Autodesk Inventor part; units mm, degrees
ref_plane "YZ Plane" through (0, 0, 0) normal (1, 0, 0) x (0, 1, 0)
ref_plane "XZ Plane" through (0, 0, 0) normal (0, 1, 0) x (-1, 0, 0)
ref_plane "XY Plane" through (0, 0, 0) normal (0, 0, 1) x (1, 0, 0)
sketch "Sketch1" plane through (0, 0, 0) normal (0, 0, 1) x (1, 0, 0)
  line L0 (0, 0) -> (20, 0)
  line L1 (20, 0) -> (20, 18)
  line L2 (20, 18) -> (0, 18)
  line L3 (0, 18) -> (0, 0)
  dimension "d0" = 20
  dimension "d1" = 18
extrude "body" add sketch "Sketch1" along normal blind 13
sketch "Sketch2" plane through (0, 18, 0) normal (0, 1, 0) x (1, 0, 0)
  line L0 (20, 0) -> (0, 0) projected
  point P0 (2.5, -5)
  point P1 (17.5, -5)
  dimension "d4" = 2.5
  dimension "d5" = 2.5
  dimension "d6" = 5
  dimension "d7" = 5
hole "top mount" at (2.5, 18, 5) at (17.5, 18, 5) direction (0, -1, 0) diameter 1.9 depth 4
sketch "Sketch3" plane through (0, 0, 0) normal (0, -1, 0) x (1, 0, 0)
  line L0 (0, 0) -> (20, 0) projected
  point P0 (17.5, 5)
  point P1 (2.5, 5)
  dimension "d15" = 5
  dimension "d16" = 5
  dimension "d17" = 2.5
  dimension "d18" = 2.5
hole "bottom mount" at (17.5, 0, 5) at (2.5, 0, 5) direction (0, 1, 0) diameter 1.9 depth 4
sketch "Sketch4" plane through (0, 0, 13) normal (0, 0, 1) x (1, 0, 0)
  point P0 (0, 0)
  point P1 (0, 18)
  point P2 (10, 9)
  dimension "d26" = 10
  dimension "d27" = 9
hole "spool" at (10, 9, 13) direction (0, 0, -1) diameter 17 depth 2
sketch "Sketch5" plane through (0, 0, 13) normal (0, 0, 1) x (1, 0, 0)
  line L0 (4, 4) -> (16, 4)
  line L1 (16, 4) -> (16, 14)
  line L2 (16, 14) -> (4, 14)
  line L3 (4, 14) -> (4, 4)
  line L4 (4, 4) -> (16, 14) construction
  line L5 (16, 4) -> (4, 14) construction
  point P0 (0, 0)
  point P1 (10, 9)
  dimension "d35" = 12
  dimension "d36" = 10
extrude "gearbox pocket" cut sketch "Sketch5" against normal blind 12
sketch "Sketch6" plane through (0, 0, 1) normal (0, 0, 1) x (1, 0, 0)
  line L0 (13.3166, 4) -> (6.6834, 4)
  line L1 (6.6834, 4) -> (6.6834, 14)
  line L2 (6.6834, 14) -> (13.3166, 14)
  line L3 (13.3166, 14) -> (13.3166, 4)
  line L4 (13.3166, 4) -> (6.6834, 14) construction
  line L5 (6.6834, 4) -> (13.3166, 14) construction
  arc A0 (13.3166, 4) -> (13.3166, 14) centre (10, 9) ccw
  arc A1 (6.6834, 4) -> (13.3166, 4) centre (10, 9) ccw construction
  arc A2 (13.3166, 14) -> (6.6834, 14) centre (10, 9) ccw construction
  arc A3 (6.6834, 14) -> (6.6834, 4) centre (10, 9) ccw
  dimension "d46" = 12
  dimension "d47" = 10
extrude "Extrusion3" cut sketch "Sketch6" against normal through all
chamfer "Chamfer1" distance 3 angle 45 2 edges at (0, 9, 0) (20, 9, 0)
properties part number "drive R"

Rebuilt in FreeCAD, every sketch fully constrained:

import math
import FreeCAD as App
import Part
import Sketcher


def edges_at(feature, points):
    """Names of the edges that pass closest to the given points."""
    edges = feature.Shape.Edges
    near = lambda p: min(range(len(edges)), key=lambda i: edges[i].distToShape(Part.Vertex(*p))[0])
    return sorted({f"Edge{near(p) + 1}" for p in points})

doc = App.newDocument("Part")
params = doc.addObject("Spreadsheet::Sheet", "Params")
for row, (alias, value) in enumerate([
    ("sketch1_width", "20 mm"),
    ("sketch1_height", "18 mm"),
    ("pad1_length", "13 mm"),
    ("sketch2_diameter", "1.9 mm"),
    ("hole_diameter", "1.9 mm"),
    ("hole_depth", "4 mm"),
    ("sketch3_diameter", "1.9 mm"),
    ("hole2_diameter", "1.9 mm"),
    ("hole2_depth", "4 mm"),
    ("sketch4_diameter", "17 mm"),
    ("hole3_diameter", "17 mm"),
    ("hole3_depth", "2 mm"),
    ("sketch5_width", "12 mm"),
    ("sketch5_height", "10 mm"),
    ("pocket1_length", "12 mm"),
    ("sketch6_radius", "6 mm"),
    ("chamfer_size", "3 mm"),
], start=1):
    params.set(f"A{row}", alias)
    params.set(f"B{row}", "=" + value)
    params.setAlias(f"B{row}", alias)

body = doc.addObject("PartDesign::Body", "Body")

sketch1 = body.newObject("Sketcher::SketchObject", "Sketch")
sketch1.AttachmentSupport = (doc.getObject("XY_Plane"), [""])
sketch1.MapMode = "FlatFace"
sketch1.addGeometry([
    Part.LineSegment(App.Vector(0, 18, 0), App.Vector(0, 0, 0)),
    Part.LineSegment(App.Vector(0, 0, 0), App.Vector(20, 0, 0)),
    Part.LineSegment(App.Vector(20, 0, 0), App.Vector(20, 18, 0)),
    Part.LineSegment(App.Vector(20, 18, 0), App.Vector(0, 18, 0)),
], False)
sketch1.addConstraint([
    Sketcher.Constraint("Coincident", 0, 2, 1, 1),
    Sketcher.Constraint("Coincident", 1, 2, 2, 1),
    Sketcher.Constraint("Coincident", 2, 2, 3, 1),
    Sketcher.Constraint("Coincident", 3, 2, 0, 1),
    Sketcher.Constraint("Vertical", 0),
    Sketcher.Constraint("Horizontal", 1),
    Sketcher.Constraint("Vertical", 2),
    Sketcher.Constraint("Horizontal", 3),
    Sketcher.Constraint("Coincident", 0, 2, -1, 1),
    Sketcher.Constraint("DistanceX", 1, 1, 1, 2, 20.0),
    Sketcher.Constraint("DistanceY", 0, 2, 0, 1, 18.0),
])
sketch1.setExpression("Constraints[9]", "Params.sketch1_width")
sketch1.setExpression("Constraints[10]", "Params.sketch1_height")
pad1 = body.newObject("PartDesign::Pad", "Pad")
pad1.Profile = sketch1
pad1.setExpression("Length", "Params.pad1_length")

sketch2 = body.newObject("Sketcher::SketchObject", "Sketch001")
sketch2.AttachmentSupport = (doc.getObject("XZ_Plane"), [""])
sketch2.MapMode = "FlatFace"
sketch2.AttachmentOffset = App.Placement(App.Vector(0, 0, -18), App.Rotation())
sketch2.addGeometry([
    Part.Circle(App.Vector(2.5, 5, 0), App.Vector(0, 0, 1), 0.9),
    Part.Circle(App.Vector(17.5, 5, 0), App.Vector(0, 0, 1), 0.9),
], False)
sketch2.addConstraint([
    Sketcher.Constraint("Equal", 0, 1),
    Sketcher.Constraint("Horizontal", 0, 3, 1, 3),
    Sketcher.Constraint("Diameter", 0, 1.9),
    Sketcher.Constraint("DistanceY", -1, 1, 0, 3, 5.0),
    Sketcher.Constraint("DistanceX", 0, 3, 1, 3, 15.0),
    Sketcher.Constraint("DistanceX", -1, 1, 0, 3, 2.5),
])
sketch2.setExpression("Constraints[2]", "Params.sketch2_diameter")
doc.recompute()
hole = body.newObject("PartDesign::Hole", "Hole")
hole.Profile = sketch2
hole.ThreadType = "None"
hole.setExpression("Diameter", "Params.hole_diameter")
hole.DepthType = "Dimension"
hole.setExpression("Depth", "Params.hole_depth")
hole.DrillPoint = "Flat"
hole.Reversed = True

sketch3 = body.newObject("Sketcher::SketchObject", "Sketch002")
sketch3.AttachmentSupport = (doc.getObject("XZ_Plane"), [""])
sketch3.MapMode = "FlatFace"
sketch3.addGeometry([
    Part.Circle(App.Vector(17.5, 5, 0), App.Vector(0, 0, 1), 0.9),
    Part.Circle(App.Vector(2.5, 5, 0), App.Vector(0, 0, 1), 0.9),
], False)
sketch3.addConstraint([
    Sketcher.Constraint("Equal", 0, 1),
    Sketcher.Constraint("Horizontal", 0, 3, 1, 3),
    Sketcher.Constraint("Diameter", 0, 1.9),
    Sketcher.Constraint("DistanceY", -1, 1, 0, 3, 5.0),
    Sketcher.Constraint("DistanceX", 1, 3, 0, 3, 15.0),
    Sketcher.Constraint("DistanceX", -1, 1, 0, 3, 17.5),
])
sketch3.setExpression("Constraints[2]", "Params.sketch3_diameter")
doc.recompute()
hole2 = body.newObject("PartDesign::Hole", "Hole001")
hole2.Profile = sketch3
hole2.ThreadType = "None"
hole2.setExpression("Diameter", "Params.hole2_diameter")
hole2.DepthType = "Dimension"
hole2.setExpression("Depth", "Params.hole2_depth")
hole2.DrillPoint = "Flat"

sketch4 = body.newObject("Sketcher::SketchObject", "Sketch003")
sketch4.AttachmentSupport = (doc.getObject("XY_Plane"), [""])
sketch4.MapMode = "FlatFace"
sketch4.AttachmentOffset = App.Placement(App.Vector(0, 0, 13), App.Rotation())
sketch4.addGeometry(Part.Circle(App.Vector(10, 9, 0), App.Vector(0, 0, 1), 8), False)
sketch4.addConstraint([
    Sketcher.Constraint("Diameter", 0, 17.0),
    Sketcher.Constraint("DistanceX", -1, 1, 0, 3, 10.0),
    Sketcher.Constraint("DistanceY", -1, 1, 0, 3, 9.0),
])
sketch4.setExpression("Constraints[0]", "Params.sketch4_diameter")
doc.recompute()
hole3 = body.newObject("PartDesign::Hole", "Hole002")
hole3.Profile = sketch4
hole3.ThreadType = "None"
hole3.setExpression("Diameter", "Params.hole3_diameter")
hole3.DepthType = "Dimension"
hole3.setExpression("Depth", "Params.hole3_depth")
hole3.DrillPoint = "Flat"

sketch5 = body.newObject("Sketcher::SketchObject", "Sketch004")
sketch5.AttachmentSupport = (doc.getObject("XY_Plane"), [""])
sketch5.MapMode = "FlatFace"
sketch5.AttachmentOffset = App.Placement(App.Vector(0, 0, 13), App.Rotation())
sketch5.addGeometry([
    Part.LineSegment(App.Vector(4, 14, 0), App.Vector(4, 4, 0)),
    Part.LineSegment(App.Vector(4, 4, 0), App.Vector(16, 4, 0)),
    Part.LineSegment(App.Vector(16, 4, 0), App.Vector(16, 14, 0)),
    Part.LineSegment(App.Vector(16, 14, 0), App.Vector(4, 14, 0)),
], False)
sketch5.addConstraint([
    Sketcher.Constraint("Coincident", 0, 2, 1, 1),
    Sketcher.Constraint("Coincident", 1, 2, 2, 1),
    Sketcher.Constraint("Coincident", 2, 2, 3, 1),
    Sketcher.Constraint("Coincident", 3, 2, 0, 1),
    Sketcher.Constraint("Vertical", 0),
    Sketcher.Constraint("Horizontal", 1),
    Sketcher.Constraint("Vertical", 2),
    Sketcher.Constraint("Horizontal", 3),
    Sketcher.Constraint("DistanceX", 1, 1, 1, 2, 12.0),
    Sketcher.Constraint("DistanceY", 0, 2, 0, 1, 10.0),
    Sketcher.Constraint("DistanceX", -1, 1, 0, 2, 4.0),
    Sketcher.Constraint("DistanceY", -1, 1, 0, 2, 4.0),
])
sketch5.setExpression("Constraints[8]", "Params.sketch5_width")
sketch5.setExpression("Constraints[9]", "Params.sketch5_height")
pocket1 = body.newObject("PartDesign::Pocket", "Pocket")
pocket1.Profile = sketch5
pocket1.setExpression("Length", "Params.pocket1_length")

sketch6 = body.newObject("Sketcher::SketchObject", "Sketch005")
sketch6.AttachmentSupport = (doc.getObject("XY_Plane"), [""])
sketch6.MapMode = "FlatFace"
sketch6.AttachmentOffset = App.Placement(App.Vector(0, 0, 1), App.Rotation())
sketch6.addGeometry([
    Part.LineSegment(App.Vector(7, 4, 0), App.Vector(13, 4, 0)),
    Part.ArcOfCircle(Part.Circle(App.Vector(10, 9, 0), App.Vector(0, 0, 1), 6), math.radians(-56), math.radians(56)),
    Part.LineSegment(App.Vector(13, 14, 0), App.Vector(7, 14, 0)),
    Part.ArcOfCircle(Part.Circle(App.Vector(10, 9, 0), App.Vector(0, 0, 1), 6), math.radians(124), math.radians(236)),
], False)
sketch6.addConstraint([
    Sketcher.Constraint("Coincident", 0, 2, 1, 1),
    Sketcher.Constraint("Coincident", 1, 2, 2, 1),
    Sketcher.Constraint("Coincident", 2, 2, 3, 1),
    Sketcher.Constraint("Coincident", 3, 2, 0, 1),
    Sketcher.Constraint("Horizontal", 0),
    Sketcher.Constraint("Horizontal", 2),
    Sketcher.Constraint("Coincident", 3, 3, 1, 3),
    Sketcher.Constraint("Equal", 1, 3),
    Sketcher.Constraint("Vertical", 0, 2, 1, 2),
    Sketcher.Constraint("Radius", 1, 6.0),
    Sketcher.Constraint("DistanceX", -1, 1, 1, 3, 10.0),
    Sketcher.Constraint("DistanceY", 0, 2, 1, 2, 10.0),
    Sketcher.Constraint("DistanceY", -1, 1, 1, 3, 9.0),
])
sketch6.setExpression("Constraints[9]", "Params.sketch6_radius")
pocket2 = body.newObject("PartDesign::Pocket", "Pocket001")
pocket2.Profile = sketch6
pocket2.Type = "ThroughAll"
doc.recompute()

chamfer = body.newObject("PartDesign::Chamfer", "Chamfer")
chamfer.Base = (pocket2, edges_at(pocket2, [(0, 9, 0), (20, 9, 0)]))
chamfer.setExpression("Size", "Params.chamfer_size")

doc.recompute()
